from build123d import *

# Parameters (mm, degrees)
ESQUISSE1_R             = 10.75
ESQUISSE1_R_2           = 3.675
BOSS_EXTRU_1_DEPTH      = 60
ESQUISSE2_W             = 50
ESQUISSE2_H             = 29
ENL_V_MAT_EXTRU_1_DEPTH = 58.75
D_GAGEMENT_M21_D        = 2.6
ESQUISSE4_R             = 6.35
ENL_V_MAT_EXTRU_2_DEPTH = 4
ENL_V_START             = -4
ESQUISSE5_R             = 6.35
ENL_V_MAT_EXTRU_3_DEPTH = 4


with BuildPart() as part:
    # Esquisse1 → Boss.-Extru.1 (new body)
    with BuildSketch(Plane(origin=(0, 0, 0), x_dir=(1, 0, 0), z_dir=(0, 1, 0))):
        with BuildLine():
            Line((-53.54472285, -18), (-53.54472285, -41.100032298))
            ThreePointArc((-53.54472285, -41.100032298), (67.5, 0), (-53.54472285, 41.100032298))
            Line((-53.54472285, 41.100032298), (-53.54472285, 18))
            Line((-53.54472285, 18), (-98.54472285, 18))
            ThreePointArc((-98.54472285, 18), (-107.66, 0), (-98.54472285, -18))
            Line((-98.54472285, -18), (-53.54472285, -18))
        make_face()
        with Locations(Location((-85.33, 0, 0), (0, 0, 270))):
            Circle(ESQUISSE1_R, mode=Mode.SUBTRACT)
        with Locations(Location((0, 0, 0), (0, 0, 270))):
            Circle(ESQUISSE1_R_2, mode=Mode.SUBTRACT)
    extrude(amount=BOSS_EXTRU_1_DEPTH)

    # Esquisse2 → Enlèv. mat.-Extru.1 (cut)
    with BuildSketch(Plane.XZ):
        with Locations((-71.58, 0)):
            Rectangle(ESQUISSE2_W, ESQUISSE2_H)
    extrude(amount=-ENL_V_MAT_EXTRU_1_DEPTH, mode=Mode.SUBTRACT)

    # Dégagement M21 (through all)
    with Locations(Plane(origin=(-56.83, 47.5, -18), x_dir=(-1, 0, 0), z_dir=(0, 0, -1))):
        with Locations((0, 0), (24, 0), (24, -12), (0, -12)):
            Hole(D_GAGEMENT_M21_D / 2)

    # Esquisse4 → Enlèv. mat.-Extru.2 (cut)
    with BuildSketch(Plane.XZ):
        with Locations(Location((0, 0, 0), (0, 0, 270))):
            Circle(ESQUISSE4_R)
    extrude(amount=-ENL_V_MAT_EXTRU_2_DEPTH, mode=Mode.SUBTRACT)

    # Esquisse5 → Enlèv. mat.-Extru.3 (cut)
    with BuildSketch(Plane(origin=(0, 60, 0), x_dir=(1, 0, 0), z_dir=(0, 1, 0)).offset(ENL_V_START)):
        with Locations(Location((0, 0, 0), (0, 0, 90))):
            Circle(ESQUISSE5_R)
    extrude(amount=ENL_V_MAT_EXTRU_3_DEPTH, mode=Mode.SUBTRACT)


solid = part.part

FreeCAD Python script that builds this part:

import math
import FreeCAD as App
import Part
import Sketcher
Q = App.Units.Quantity

doc = App.newDocument("Part")
params = doc.addObject("Spreadsheet::Sheet", "Params")
for row, (alias, value) in enumerate([
    ("sketch1_diameter", "21.5 mm"),
    ("sketch1_radius", "67.5 mm"),
    ("sketch1_diameter2", "7.35 mm"),
    ("sketch1_width", "45 mm"),
    ("sketch1_radius2", "22.33 mm"),
    ("pad1_length", "60 mm"),
    ("sketch2_width", "50 mm"),
    ("sketch2_height", "29 mm"),
    ("pocket1_length", "58.75 mm"),
    ("sketch3_diameter", "2.6 mm"),
    ("hole_diameter", "2.6 mm"),
    ("sketch4_diameter", "12.7 mm"),
    ("pocket2_length", "4 mm"),
    ("sketch5_diameter", "12.7 mm"),
    ("pocket3_length", "4 mm"),
], start=1):
    params.set(f"A{row}", alias)
    params.set(f"B{row}", "=" + value)
    params.setAlias(f"B{row}", alias)

body = doc.addObject("PartDesign::Body", "Body")

sketch1 = body.newObject("Sketcher::SketchObject", "Sketch")
sketch1.AttachmentSupport = (doc.getObject("XZ_Plane"), [""])
sketch1.MapMode = "FlatFace"
sketch1.addGeometry([
    Part.LineSegment(App.Vector(-53.5, 18, 0), App.Vector(-53.5, 41.1, 0)),
    Part.ArcOfCircle(Part.Circle(App.Vector(0, 0, 0), App.Vector(0, 0, 1), 67.5), math.radians(-142), math.radians(142)),
    Part.LineSegment(App.Vector(-53.5, -41.1, 0), App.Vector(-53.5, -18, 0)),
    Part.LineSegment(App.Vector(-53.5, -18, 0), App.Vector(-98.5, -18, 0)),
    Part.ArcOfCircle(Part.Circle(App.Vector(-85.3, 0, 0), App.Vector(0, 0, 1), 22.3), math.radians(126), math.radians(234)),
    Part.LineSegment(App.Vector(-98.5, 18, 0), App.Vector(-53.5, 18, 0)),
    Part.Circle(App.Vector(-85.3, 0, 0), App.Vector(0, 0, 1), 10.8),
    Part.Circle(App.Vector(0, 0, 0), App.Vector(0, 0, 1), 3.7),
], False)
sketch1.addConstraint([
    Sketcher.Constraint("Coincident", 0, 2, 1, 2),
    Sketcher.Constraint("Coincident", 1, 1, 2, 1),
    Sketcher.Constraint("Coincident", 2, 2, 3, 1),
    Sketcher.Constraint("Coincident", 3, 2, 4, 2),
    Sketcher.Constraint("Coincident", 4, 1, 5, 1),
    Sketcher.Constraint("Coincident", 5, 2, 0, 1),
    Sketcher.Constraint("Vertical", 0),
    Sketcher.Constraint("Vertical", 2),
    Sketcher.Constraint("Horizontal", 3),
    Sketcher.Constraint("Horizontal", 5),
    Sketcher.Constraint("Coincident", 1, 3, -1, 1),
    Sketcher.Constraint("Coincident", 7, 3, -1, 1),
    Sketcher.Constraint("Coincident", 6, 3, 4, 3),
    Sketcher.Constraint("Symmetric", 3, 2, 4, 1, -1),
    Sketcher.Constraint("Vertical", 0, 2, 1, 1),
    Sketcher.Constraint("Diameter", 6, Q("21.5 mm")),
    Sketcher.Constraint("Radius", 1, Q("67.5 mm")),
    Sketcher.Constraint("Diameter", 7, Q("7.35 mm")),
    Sketcher.Constraint("DistanceX", 3, 2, 3, 1, Q("45 mm")),
    Sketcher.Constraint("Radius", 4, Q("22.33 mm")),
    Sketcher.Constraint("DistanceY", 2, 2, -1, 1, Q("18 mm")),
    Sketcher.Constraint("DistanceX", 4, 3, -1, 1, Q("85.33 mm")),
])
sketch1.setExpression("Constraints[15]", "Params.sketch1_diameter")
sketch1.setExpression("Constraints[16]", "Params.sketch1_radius")
sketch1.setExpression("Constraints[17]", "Params.sketch1_diameter2")
sketch1.setExpression("Constraints[18]", "Params.sketch1_width")
sketch1.setExpression("Constraints[19]", "Params.sketch1_radius2")
pad1 = body.newObject("PartDesign::Pad", "Pad")
pad1.Profile = sketch1
pad1.setExpression("Length", "Params.pad1_length")
pad1.Reversed = True

sketch2 = body.newObject("Sketcher::SketchObject", "Sketch001")
sketch2.AttachmentSupport = (doc.getObject("XZ_Plane"), [""])
sketch2.MapMode = "FlatFace"
sketch2.addGeometry([
    Part.LineSegment(App.Vector(-97, 14, 0), App.Vector(-97, -14, 0)),
    Part.LineSegment(App.Vector(-97, -14, 0), App.Vector(-47, -14, 0)),
    Part.LineSegment(App.Vector(-47, -14, 0), App.Vector(-47, 14, 0)),
    Part.LineSegment(App.Vector(-47, 14, 0), App.Vector(-97, 14, 0)),
], False)
sketch2.addConstraint([
    Sketcher.Constraint("Coincident", 0, 2, 1, 1),
    Sketcher.Constraint("Coincident", 1, 2, 2, 1),
    Sketcher.Constraint("Coincident", 2, 2, 3, 1),
    Sketcher.Constraint("Coincident", 3, 2, 0, 1),
    Sketcher.Constraint("Vertical", 0),
    Sketcher.Constraint("Horizontal", 1),
    Sketcher.Constraint("Vertical", 2),
    Sketcher.Constraint("Horizontal", 3),
    Sketcher.Constraint("DistanceX", 1, 1, 1, 2, Q("50 mm")),
    Sketcher.Constraint("DistanceY", 0, 2, 0, 1, Q("29 mm")),
    Sketcher.Constraint("DistanceY", 0, 2, -1, 1, Q("14.5 mm")),
    Sketcher.Constraint("DistanceX", 0, 2, -1, 1, Q("96.58 mm")),
])
sketch2.setExpression("Constraints[8]", "Params.sketch2_width")
sketch2.setExpression("Constraints[9]", "Params.sketch2_height")
pocket1 = body.newObject("PartDesign::Pocket", "Pocket")
pocket1.Profile = sketch2
pocket1.setExpression("Length", "Params.pocket1_length")

sketch3 = body.newObject("Sketcher::SketchObject", "Sketch002")
sketch3.AttachmentSupport = (doc.getObject("XY_Plane"), [""])
sketch3.MapMode = "FlatFace"
sketch3.AttachmentOffset = App.Placement(App.Vector(0, 0, -18), App.Rotation())
sketch3.addGeometry([
    Part.Circle(App.Vector(-56.8, 47.5, 0), App.Vector(0, 0, 1), 1.3),
    Part.Circle(App.Vector(-80.8, 47.5, 0), App.Vector(0, 0, 1), 1.3),
    Part.Circle(App.Vector(-80.8, 35.5, 0), App.Vector(0, 0, 1), 1.3),
    Part.Circle(App.Vector(-56.8, 35.5, 0), App.Vector(0, 0, 1), 1.3),
], False)
sketch3.addConstraint([
    Sketcher.Constraint("Equal", 0, 1),
    Sketcher.Constraint("Equal", 1, 2),
    Sketcher.Constraint("Equal", 2, 3),
    Sketcher.Constraint("Horizontal", 0, 3, 1, 3),
    Sketcher.Constraint("Horizontal", 2, 3, 3, 3),
    Sketcher.Constraint("Vertical", 1, 3, 2, 3),
    Sketcher.Constraint("Vertical", 0, 3, 3, 3),
    Sketcher.Constraint("Diameter", 0, Q("2.6 mm")),
    Sketcher.Constraint("DistanceX", 1, 3, 0, 3, Q("24 mm")),
    Sketcher.Constraint("DistanceY", 2, 3, 1, 3, Q("12 mm")),
    Sketcher.Constraint("DistanceY", -1, 1, 0, 3, Q("47.5 mm")),
    Sketcher.Constraint("DistanceX", 0, 3, -1, 1, Q("56.83 mm")),
])
sketch3.setExpression("Constraints[7]", "Params.sketch3_diameter")
doc.recompute()
hole = body.newObject("PartDesign::Hole", "Hole")
hole.Profile = sketch3
hole.ThreadType = "None"
hole.setExpression("Diameter", "Params.hole_diameter")
hole.DepthType = "ThroughAll"
hole.Reversed = True

sketch4 = body.newObject("Sketcher::SketchObject", "Sketch003")
sketch4.AttachmentSupport = (doc.getObject("XZ_Plane"), [""])
sketch4.MapMode = "FlatFace"
sketch4.addGeometry(Part.Circle(App.Vector(0, 0, 0), App.Vector(0, 0, 1), 6), False)
sketch4.addConstraint([
    Sketcher.Constraint("Coincident", 0, 3, -1, 1),
    Sketcher.Constraint("Diameter", 0, Q("12.7 mm")),
])
sketch4.setExpression("Constraints[1]", "Params.sketch4_diameter")
pocket2 = body.newObject("PartDesign::Pocket", "Pocket001")
pocket2.Profile = sketch4
pocket2.setExpression("Length", "Params.pocket2_length")

sketch5 = body.newObject("Sketcher::SketchObject", "Sketch004")
sketch5.AttachmentSupport = (doc.getObject("XZ_Plane"), [""])
sketch5.MapMode = "FlatFace"
sketch5.AttachmentOffset = App.Placement(App.Vector(0, 0, -56), App.Rotation())
sketch5.addGeometry(Part.Circle(App.Vector(0, 0, 0), App.Vector(0, 0, 1), 6), False)
sketch5.addConstraint([
    Sketcher.Constraint("Coincident", 0, 3, -1, 1),
    Sketcher.Constraint("Diameter", 0, Q("12.7 mm")),
])
sketch5.setExpression("Constraints[1]", "Params.sketch5_diameter")
pocket3 = body.newObject("PartDesign::Pocket", "Pocket002")
pocket3.Profile = sketch5
pocket3.setExpression("Length", "Params.pocket3_length")

doc.recompute()
